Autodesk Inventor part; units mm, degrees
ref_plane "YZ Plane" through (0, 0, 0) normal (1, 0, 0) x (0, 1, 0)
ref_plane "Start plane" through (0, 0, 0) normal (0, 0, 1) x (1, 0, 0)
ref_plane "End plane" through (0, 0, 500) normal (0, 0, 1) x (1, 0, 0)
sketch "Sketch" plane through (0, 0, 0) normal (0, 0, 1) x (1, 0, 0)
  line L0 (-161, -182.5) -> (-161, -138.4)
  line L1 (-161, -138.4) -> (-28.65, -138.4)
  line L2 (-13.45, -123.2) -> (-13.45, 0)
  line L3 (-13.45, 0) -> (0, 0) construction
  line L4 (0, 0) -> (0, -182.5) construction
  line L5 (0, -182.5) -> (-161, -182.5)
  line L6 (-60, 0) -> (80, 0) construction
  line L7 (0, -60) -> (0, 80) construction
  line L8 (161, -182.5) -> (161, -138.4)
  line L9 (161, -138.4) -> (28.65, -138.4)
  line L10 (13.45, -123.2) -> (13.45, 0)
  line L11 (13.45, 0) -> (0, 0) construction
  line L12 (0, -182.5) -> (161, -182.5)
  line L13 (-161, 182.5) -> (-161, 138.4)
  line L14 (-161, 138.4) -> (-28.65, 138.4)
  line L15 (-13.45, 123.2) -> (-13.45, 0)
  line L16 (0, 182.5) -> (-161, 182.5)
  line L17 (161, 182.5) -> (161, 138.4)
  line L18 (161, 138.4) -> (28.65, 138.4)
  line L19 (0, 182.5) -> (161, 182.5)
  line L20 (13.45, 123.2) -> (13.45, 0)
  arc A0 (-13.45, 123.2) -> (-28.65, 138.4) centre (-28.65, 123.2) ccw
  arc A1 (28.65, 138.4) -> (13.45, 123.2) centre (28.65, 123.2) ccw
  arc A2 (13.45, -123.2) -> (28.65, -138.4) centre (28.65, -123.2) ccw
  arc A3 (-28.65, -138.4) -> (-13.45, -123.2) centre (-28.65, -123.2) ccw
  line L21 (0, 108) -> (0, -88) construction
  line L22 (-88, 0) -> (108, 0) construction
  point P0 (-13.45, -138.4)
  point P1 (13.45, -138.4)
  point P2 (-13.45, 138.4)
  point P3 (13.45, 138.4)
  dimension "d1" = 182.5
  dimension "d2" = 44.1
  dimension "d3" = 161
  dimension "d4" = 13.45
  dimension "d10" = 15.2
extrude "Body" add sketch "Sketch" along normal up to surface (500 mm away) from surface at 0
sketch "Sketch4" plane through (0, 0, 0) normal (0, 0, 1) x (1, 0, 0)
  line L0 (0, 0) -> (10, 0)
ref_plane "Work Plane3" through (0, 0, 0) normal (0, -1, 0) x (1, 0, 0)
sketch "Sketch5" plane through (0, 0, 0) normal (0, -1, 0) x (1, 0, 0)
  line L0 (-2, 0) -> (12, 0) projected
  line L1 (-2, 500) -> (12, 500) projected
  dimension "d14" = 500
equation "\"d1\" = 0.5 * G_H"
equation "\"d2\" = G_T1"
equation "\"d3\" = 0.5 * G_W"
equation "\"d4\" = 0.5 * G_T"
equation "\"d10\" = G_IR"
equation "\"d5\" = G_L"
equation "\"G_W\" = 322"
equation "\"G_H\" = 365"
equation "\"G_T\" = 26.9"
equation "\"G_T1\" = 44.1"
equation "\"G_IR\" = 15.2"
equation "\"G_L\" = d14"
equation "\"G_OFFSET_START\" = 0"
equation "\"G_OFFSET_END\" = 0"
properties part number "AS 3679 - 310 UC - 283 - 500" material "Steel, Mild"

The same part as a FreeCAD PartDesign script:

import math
import FreeCAD as App
import Part
import Sketcher

V = App.Vector
Q = App.Units.Quantity

doc = App.newDocument("Part")
body = doc.addObject("PartDesign::Body", "Body")

sketch1 = doc.addObject("Sketcher::SketchObject", "Sketch")
body.addObject(sketch1)
sketch1.AttachmentSupport = (doc.XY_Plane, [""])
sketch1.MapMode = "FlatFace"
sketch1.addGeometry([
    Part.LineSegment(V(-161, -138, 0), V(-161, -182, 0)),
    Part.LineSegment(V(-161, -182, 0), V(161, -182, 0)),
    Part.LineSegment(V(161, -182, 0), V(161, -138, 0)),
    Part.LineSegment(V(161, -138, 0), V(29, -138, 0)),
    Part.ArcOfCircle(Part.Circle(V(29, -123, 0), V(0, 0, 1), 15), math.radians(180), math.radians(270)),
    Part.LineSegment(V(13, -123, 0), V(13, 123, 0)),
    Part.ArcOfCircle(Part.Circle(V(29, 123, 0), V(0, 0, 1), 15), math.radians(90), math.radians(180)),
    Part.LineSegment(V(29, 138, 0), V(161, 138, 0)),
    Part.LineSegment(V(161, 138, 0), V(161, 182, 0)),
    Part.LineSegment(V(161, 182, 0), V(-161, 182, 0)),
    Part.LineSegment(V(-161, 182, 0), V(-161, 138, 0)),
    Part.LineSegment(V(-161, 138, 0), V(-29, 138, 0)),
    Part.ArcOfCircle(Part.Circle(V(-29, 123, 0), V(0, 0, 1), 15), math.radians(0), math.radians(90)),
    Part.LineSegment(V(-13, 123, 0), V(-13, -123, 0)),
    Part.ArcOfCircle(Part.Circle(V(-29, -123, 0), V(0, 0, 1), 15), math.radians(-90), math.radians(0)),
    Part.LineSegment(V(-29, -138, 0), V(-161, -138, 0)),
], False)
sketch1.addConstraint([
    Sketcher.Constraint("Coincident", 0, 2, 1, 1),
    Sketcher.Constraint("Coincident", 1, 2, 2, 1),
    Sketcher.Constraint("Coincident", 2, 2, 3, 1),
    Sketcher.Constraint("Tangent", 3, 2, 4, 2),
    Sketcher.Constraint("Tangent", 4, 1, 5, 1),
    Sketcher.Constraint("Tangent", 5, 2, 6, 2),
    Sketcher.Constraint("Tangent", 6, 1, 7, 1),
    Sketcher.Constraint("Coincident", 7, 2, 8, 1),
    Sketcher.Constraint("Coincident", 8, 2, 9, 1),
    Sketcher.Constraint("Coincident", 9, 2, 10, 1),
    Sketcher.Constraint("Coincident", 10, 2, 11, 1),
    Sketcher.Constraint("Tangent", 11, 2, 12, 2),
    Sketcher.Constraint("Tangent", 12, 1, 13, 1),
    Sketcher.Constraint("Tangent", 13, 2, 14, 2),
    Sketcher.Constraint("Tangent", 14, 1, 15, 1),
    Sketcher.Constraint("Coincident", 15, 2, 0, 1),
    Sketcher.Constraint("Vertical", 0),
    Sketcher.Constraint("Horizontal", 1),
    Sketcher.Constraint("Vertical", 2),
    Sketcher.Constraint("Horizontal", 3),
    Sketcher.Constraint("Vertical", 5),
    Sketcher.Constraint("Horizontal", 7),
    Sketcher.Constraint("Vertical", 8),
    Sketcher.Constraint("Horizontal", 9),
    Sketcher.Constraint("Vertical", 10),
    Sketcher.Constraint("Horizontal", 11),
    Sketcher.Constraint("Vertical", 13),
    Sketcher.Constraint("Horizontal", 15),
    Sketcher.Constraint("Equal", 4, 6),
    Sketcher.Constraint("Equal", 6, 12),
    Sketcher.Constraint("Equal", 12, 14),
    Sketcher.Constraint("Symmetric", 4, 3, 12, 3, -1, 1),
    Sketcher.Constraint("Symmetric", 0, 2, 8, 2, -1, 1),
    Sketcher.Constraint("Symmetric", 7, 2, 10, 2, -2),
    Sketcher.Constraint("Symmetric", 2, 2, 15, 2, -2),
    Sketcher.Constraint("Radius", 4, Q("15.2 mm")),
    Sketcher.Constraint("DistanceY", 0, 2, 0, 1, Q("44.1 mm")),
    Sketcher.Constraint("DistanceX", 0, 2, -1, 1, Q("161 mm")),
    Sketcher.Constraint("DistanceY", 0, 2, -1, 1, Q("182.5 mm")),
    Sketcher.Constraint("DistanceX", -1, 1, 4, 1, Q("13.45 mm")),
])
pad1 = doc.addObject("PartDesign::Pad", "Pad")
body.addObject(pad1)
pad1.Profile = sketch1
pad1.Length = 500

doc.recompute()
